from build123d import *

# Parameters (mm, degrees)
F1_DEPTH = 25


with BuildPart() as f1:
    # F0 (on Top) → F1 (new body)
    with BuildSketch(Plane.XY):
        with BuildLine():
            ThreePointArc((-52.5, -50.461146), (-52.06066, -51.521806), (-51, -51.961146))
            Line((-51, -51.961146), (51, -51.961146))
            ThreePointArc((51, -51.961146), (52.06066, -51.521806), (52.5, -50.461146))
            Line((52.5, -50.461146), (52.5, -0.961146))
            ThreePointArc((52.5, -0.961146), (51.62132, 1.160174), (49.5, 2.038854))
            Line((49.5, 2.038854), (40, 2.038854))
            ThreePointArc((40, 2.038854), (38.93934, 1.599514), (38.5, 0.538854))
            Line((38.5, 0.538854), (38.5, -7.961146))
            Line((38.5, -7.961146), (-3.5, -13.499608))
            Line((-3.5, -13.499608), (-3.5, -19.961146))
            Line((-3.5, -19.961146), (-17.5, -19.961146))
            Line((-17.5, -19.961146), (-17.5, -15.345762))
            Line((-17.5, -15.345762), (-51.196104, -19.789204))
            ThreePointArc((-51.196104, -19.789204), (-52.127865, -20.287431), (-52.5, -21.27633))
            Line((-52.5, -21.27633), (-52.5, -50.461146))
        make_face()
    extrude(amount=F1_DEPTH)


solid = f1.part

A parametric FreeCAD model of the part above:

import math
import FreeCAD as App
import Part
import Sketcher
Q = App.Units.Quantity

doc = App.newDocument("Part")
body = doc.addObject("PartDesign::Body", "Body")

# Sketch on XY plane
sketch1 = doc.addObject("Sketcher::SketchObject", "Sketch")
body.addObject(sketch1)
sketch1.AttachmentSupport = (doc.XY_Plane, [""])
sketch1.MapMode = "FlatFace"
sketch1.addGeometry([
    Part.ArcOfCircle(Part.Circle(App.Vector(-51, -50.5, 0), App.Vector(0, 0, 1), 1.5), math.radians(-180), math.radians(-90)),  # 0
    Part.LineSegment(App.Vector(-51, -52, 0), App.Vector(51, -52, 0)),  # 1
    Part.ArcOfCircle(Part.Circle(App.Vector(51, -50.5, 0), App.Vector(0, 0, 1), 1.5), math.radians(-90), math.radians(0)),  # 2
    Part.LineSegment(App.Vector(52.5, -50.5, 0), App.Vector(52.5, -1, 0)),  # 3
    Part.ArcOfCircle(Part.Circle(App.Vector(49.5, -1, 0), App.Vector(0, 0, 1), 3), math.radians(0), math.radians(90)),  # 4
    Part.LineSegment(App.Vector(49.5, 2, 0), App.Vector(40, 2, 0)),  # 5
    Part.ArcOfCircle(Part.Circle(App.Vector(40, 0.5, 0), App.Vector(0, 0, 1), 1.5), math.radians(90), math.radians(180)),  # 6
    Part.LineSegment(App.Vector(38.5, 0.5, 0), App.Vector(38.5, -8, 0)),  # 7
    Part.LineSegment(App.Vector(38.5, -8, 0), App.Vector(-3.5, -13.5, 0)),  # 8
    Part.LineSegment(App.Vector(-3.5, -13.5, 0), App.Vector(-3.5, -20, 0)),  # 9
    Part.LineSegment(App.Vector(-3.5, -20, 0), App.Vector(-17.5, -20, 0)),  # 10
    Part.LineSegment(App.Vector(-17.5, -20, 0), App.Vector(-17.5, -15.3, 0)),  # 11
    Part.LineSegment(App.Vector(-17.5, -15.3, 0), App.Vector(-51.2, -19.8, 0)),  # 12
    Part.ArcOfCircle(Part.Circle(App.Vector(-51, -21.3, 0), App.Vector(0, 0, 1), 1.5), math.radians(98), math.radians(180)),  # 13
    Part.LineSegment(App.Vector(-52.5, -21.3, 0), App.Vector(-52.5, -50.5, 0)),  # 14
], False)
sketch1.addConstraint([
    Sketcher.Constraint("Tangent", 0, 2, 1, 1),
    Sketcher.Constraint("Tangent", 1, 2, 2, 1),
    Sketcher.Constraint("Tangent", 2, 2, 3, 1),
    Sketcher.Constraint("Tangent", 3, 2, 4, 1),
    Sketcher.Constraint("Tangent", 4, 2, 5, 1),
    Sketcher.Constraint("Tangent", 5, 2, 6, 1),
    Sketcher.Constraint("Tangent", 6, 2, 7, 1),
    Sketcher.Constraint("Coincident", 7, 2, 8, 1),
    Sketcher.Constraint("Coincident", 8, 2, 9, 1),
    Sketcher.Constraint("Coincident", 9, 2, 10, 1),
    Sketcher.Constraint("Coincident", 10, 2, 11, 1),
    Sketcher.Constraint("Coincident", 11, 2, 12, 1),
    Sketcher.Constraint("Tangent", 12, 2, 13, 1),
    Sketcher.Constraint("Tangent", 13, 2, 14, 1),
    Sketcher.Constraint("Tangent", 14, 2, 0, 1),
    Sketcher.Constraint("Horizontal", 1),
    Sketcher.Constraint("Vertical", 3),
    Sketcher.Constraint("Horizontal", 5),
    Sketcher.Constraint("Vertical", 7),
    Sketcher.Constraint("Vertical", 9),
    Sketcher.Constraint("Horizontal", 10),
    Sketcher.Constraint("Vertical", 11),
    Sketcher.Constraint("Vertical", 14),
    Sketcher.Constraint("Equal", 0, 2),
    Sketcher.Constraint("Equal", 2, 6),
    Sketcher.Constraint("Equal", 6, 13),
    Sketcher.Constraint("Parallel", 8, 12),
    Sketcher.Constraint("Radius", 4, Q("3.000001 mm")),
    Sketcher.Constraint("Radius", 0, Q("1.500001 mm")),
    Sketcher.Constraint("DistanceX", 1, 1, 1, 2, Q("102 mm")),
    Sketcher.Constraint("DistanceX", 10, 2, 10, 1, Q("14 mm")),
    Sketcher.Constraint("DistanceX", 5, 2, 5, 1, Q("9.5 mm")),
    Sketcher.Constraint("DistanceY", 3, 1, 3, 2, Q("49.5 mm")),
    Sketcher.Constraint("DistanceY", 7, 2, 7, 1, Q("8.5 mm")),
    Sketcher.Constraint("DistanceX", 0, 3, -1, 1, Q("50.999999 mm")),
    Sketcher.Constraint("DistanceX", 8, 2, 7, 2, Q("42 mm")),
    Sketcher.Constraint("DistanceY", 9, 2, 7, 2, Q("12 mm")),
    Sketcher.Constraint("Distance", 8, Q("42.363599 mm")),
    Sketcher.Constraint("DistanceY", 11, 1, 11, 2, Q("4.615384 mm")),
    Sketcher.Constraint("DistanceY", 13, 3, -1, 1, Q("21.27633 mm")),
])
pad1 = doc.addObject("PartDesign::Pad", "Pad")
body.addObject(pad1)
pad1.Profile = sketch1
pad1.Length = 25

doc.recompute()
